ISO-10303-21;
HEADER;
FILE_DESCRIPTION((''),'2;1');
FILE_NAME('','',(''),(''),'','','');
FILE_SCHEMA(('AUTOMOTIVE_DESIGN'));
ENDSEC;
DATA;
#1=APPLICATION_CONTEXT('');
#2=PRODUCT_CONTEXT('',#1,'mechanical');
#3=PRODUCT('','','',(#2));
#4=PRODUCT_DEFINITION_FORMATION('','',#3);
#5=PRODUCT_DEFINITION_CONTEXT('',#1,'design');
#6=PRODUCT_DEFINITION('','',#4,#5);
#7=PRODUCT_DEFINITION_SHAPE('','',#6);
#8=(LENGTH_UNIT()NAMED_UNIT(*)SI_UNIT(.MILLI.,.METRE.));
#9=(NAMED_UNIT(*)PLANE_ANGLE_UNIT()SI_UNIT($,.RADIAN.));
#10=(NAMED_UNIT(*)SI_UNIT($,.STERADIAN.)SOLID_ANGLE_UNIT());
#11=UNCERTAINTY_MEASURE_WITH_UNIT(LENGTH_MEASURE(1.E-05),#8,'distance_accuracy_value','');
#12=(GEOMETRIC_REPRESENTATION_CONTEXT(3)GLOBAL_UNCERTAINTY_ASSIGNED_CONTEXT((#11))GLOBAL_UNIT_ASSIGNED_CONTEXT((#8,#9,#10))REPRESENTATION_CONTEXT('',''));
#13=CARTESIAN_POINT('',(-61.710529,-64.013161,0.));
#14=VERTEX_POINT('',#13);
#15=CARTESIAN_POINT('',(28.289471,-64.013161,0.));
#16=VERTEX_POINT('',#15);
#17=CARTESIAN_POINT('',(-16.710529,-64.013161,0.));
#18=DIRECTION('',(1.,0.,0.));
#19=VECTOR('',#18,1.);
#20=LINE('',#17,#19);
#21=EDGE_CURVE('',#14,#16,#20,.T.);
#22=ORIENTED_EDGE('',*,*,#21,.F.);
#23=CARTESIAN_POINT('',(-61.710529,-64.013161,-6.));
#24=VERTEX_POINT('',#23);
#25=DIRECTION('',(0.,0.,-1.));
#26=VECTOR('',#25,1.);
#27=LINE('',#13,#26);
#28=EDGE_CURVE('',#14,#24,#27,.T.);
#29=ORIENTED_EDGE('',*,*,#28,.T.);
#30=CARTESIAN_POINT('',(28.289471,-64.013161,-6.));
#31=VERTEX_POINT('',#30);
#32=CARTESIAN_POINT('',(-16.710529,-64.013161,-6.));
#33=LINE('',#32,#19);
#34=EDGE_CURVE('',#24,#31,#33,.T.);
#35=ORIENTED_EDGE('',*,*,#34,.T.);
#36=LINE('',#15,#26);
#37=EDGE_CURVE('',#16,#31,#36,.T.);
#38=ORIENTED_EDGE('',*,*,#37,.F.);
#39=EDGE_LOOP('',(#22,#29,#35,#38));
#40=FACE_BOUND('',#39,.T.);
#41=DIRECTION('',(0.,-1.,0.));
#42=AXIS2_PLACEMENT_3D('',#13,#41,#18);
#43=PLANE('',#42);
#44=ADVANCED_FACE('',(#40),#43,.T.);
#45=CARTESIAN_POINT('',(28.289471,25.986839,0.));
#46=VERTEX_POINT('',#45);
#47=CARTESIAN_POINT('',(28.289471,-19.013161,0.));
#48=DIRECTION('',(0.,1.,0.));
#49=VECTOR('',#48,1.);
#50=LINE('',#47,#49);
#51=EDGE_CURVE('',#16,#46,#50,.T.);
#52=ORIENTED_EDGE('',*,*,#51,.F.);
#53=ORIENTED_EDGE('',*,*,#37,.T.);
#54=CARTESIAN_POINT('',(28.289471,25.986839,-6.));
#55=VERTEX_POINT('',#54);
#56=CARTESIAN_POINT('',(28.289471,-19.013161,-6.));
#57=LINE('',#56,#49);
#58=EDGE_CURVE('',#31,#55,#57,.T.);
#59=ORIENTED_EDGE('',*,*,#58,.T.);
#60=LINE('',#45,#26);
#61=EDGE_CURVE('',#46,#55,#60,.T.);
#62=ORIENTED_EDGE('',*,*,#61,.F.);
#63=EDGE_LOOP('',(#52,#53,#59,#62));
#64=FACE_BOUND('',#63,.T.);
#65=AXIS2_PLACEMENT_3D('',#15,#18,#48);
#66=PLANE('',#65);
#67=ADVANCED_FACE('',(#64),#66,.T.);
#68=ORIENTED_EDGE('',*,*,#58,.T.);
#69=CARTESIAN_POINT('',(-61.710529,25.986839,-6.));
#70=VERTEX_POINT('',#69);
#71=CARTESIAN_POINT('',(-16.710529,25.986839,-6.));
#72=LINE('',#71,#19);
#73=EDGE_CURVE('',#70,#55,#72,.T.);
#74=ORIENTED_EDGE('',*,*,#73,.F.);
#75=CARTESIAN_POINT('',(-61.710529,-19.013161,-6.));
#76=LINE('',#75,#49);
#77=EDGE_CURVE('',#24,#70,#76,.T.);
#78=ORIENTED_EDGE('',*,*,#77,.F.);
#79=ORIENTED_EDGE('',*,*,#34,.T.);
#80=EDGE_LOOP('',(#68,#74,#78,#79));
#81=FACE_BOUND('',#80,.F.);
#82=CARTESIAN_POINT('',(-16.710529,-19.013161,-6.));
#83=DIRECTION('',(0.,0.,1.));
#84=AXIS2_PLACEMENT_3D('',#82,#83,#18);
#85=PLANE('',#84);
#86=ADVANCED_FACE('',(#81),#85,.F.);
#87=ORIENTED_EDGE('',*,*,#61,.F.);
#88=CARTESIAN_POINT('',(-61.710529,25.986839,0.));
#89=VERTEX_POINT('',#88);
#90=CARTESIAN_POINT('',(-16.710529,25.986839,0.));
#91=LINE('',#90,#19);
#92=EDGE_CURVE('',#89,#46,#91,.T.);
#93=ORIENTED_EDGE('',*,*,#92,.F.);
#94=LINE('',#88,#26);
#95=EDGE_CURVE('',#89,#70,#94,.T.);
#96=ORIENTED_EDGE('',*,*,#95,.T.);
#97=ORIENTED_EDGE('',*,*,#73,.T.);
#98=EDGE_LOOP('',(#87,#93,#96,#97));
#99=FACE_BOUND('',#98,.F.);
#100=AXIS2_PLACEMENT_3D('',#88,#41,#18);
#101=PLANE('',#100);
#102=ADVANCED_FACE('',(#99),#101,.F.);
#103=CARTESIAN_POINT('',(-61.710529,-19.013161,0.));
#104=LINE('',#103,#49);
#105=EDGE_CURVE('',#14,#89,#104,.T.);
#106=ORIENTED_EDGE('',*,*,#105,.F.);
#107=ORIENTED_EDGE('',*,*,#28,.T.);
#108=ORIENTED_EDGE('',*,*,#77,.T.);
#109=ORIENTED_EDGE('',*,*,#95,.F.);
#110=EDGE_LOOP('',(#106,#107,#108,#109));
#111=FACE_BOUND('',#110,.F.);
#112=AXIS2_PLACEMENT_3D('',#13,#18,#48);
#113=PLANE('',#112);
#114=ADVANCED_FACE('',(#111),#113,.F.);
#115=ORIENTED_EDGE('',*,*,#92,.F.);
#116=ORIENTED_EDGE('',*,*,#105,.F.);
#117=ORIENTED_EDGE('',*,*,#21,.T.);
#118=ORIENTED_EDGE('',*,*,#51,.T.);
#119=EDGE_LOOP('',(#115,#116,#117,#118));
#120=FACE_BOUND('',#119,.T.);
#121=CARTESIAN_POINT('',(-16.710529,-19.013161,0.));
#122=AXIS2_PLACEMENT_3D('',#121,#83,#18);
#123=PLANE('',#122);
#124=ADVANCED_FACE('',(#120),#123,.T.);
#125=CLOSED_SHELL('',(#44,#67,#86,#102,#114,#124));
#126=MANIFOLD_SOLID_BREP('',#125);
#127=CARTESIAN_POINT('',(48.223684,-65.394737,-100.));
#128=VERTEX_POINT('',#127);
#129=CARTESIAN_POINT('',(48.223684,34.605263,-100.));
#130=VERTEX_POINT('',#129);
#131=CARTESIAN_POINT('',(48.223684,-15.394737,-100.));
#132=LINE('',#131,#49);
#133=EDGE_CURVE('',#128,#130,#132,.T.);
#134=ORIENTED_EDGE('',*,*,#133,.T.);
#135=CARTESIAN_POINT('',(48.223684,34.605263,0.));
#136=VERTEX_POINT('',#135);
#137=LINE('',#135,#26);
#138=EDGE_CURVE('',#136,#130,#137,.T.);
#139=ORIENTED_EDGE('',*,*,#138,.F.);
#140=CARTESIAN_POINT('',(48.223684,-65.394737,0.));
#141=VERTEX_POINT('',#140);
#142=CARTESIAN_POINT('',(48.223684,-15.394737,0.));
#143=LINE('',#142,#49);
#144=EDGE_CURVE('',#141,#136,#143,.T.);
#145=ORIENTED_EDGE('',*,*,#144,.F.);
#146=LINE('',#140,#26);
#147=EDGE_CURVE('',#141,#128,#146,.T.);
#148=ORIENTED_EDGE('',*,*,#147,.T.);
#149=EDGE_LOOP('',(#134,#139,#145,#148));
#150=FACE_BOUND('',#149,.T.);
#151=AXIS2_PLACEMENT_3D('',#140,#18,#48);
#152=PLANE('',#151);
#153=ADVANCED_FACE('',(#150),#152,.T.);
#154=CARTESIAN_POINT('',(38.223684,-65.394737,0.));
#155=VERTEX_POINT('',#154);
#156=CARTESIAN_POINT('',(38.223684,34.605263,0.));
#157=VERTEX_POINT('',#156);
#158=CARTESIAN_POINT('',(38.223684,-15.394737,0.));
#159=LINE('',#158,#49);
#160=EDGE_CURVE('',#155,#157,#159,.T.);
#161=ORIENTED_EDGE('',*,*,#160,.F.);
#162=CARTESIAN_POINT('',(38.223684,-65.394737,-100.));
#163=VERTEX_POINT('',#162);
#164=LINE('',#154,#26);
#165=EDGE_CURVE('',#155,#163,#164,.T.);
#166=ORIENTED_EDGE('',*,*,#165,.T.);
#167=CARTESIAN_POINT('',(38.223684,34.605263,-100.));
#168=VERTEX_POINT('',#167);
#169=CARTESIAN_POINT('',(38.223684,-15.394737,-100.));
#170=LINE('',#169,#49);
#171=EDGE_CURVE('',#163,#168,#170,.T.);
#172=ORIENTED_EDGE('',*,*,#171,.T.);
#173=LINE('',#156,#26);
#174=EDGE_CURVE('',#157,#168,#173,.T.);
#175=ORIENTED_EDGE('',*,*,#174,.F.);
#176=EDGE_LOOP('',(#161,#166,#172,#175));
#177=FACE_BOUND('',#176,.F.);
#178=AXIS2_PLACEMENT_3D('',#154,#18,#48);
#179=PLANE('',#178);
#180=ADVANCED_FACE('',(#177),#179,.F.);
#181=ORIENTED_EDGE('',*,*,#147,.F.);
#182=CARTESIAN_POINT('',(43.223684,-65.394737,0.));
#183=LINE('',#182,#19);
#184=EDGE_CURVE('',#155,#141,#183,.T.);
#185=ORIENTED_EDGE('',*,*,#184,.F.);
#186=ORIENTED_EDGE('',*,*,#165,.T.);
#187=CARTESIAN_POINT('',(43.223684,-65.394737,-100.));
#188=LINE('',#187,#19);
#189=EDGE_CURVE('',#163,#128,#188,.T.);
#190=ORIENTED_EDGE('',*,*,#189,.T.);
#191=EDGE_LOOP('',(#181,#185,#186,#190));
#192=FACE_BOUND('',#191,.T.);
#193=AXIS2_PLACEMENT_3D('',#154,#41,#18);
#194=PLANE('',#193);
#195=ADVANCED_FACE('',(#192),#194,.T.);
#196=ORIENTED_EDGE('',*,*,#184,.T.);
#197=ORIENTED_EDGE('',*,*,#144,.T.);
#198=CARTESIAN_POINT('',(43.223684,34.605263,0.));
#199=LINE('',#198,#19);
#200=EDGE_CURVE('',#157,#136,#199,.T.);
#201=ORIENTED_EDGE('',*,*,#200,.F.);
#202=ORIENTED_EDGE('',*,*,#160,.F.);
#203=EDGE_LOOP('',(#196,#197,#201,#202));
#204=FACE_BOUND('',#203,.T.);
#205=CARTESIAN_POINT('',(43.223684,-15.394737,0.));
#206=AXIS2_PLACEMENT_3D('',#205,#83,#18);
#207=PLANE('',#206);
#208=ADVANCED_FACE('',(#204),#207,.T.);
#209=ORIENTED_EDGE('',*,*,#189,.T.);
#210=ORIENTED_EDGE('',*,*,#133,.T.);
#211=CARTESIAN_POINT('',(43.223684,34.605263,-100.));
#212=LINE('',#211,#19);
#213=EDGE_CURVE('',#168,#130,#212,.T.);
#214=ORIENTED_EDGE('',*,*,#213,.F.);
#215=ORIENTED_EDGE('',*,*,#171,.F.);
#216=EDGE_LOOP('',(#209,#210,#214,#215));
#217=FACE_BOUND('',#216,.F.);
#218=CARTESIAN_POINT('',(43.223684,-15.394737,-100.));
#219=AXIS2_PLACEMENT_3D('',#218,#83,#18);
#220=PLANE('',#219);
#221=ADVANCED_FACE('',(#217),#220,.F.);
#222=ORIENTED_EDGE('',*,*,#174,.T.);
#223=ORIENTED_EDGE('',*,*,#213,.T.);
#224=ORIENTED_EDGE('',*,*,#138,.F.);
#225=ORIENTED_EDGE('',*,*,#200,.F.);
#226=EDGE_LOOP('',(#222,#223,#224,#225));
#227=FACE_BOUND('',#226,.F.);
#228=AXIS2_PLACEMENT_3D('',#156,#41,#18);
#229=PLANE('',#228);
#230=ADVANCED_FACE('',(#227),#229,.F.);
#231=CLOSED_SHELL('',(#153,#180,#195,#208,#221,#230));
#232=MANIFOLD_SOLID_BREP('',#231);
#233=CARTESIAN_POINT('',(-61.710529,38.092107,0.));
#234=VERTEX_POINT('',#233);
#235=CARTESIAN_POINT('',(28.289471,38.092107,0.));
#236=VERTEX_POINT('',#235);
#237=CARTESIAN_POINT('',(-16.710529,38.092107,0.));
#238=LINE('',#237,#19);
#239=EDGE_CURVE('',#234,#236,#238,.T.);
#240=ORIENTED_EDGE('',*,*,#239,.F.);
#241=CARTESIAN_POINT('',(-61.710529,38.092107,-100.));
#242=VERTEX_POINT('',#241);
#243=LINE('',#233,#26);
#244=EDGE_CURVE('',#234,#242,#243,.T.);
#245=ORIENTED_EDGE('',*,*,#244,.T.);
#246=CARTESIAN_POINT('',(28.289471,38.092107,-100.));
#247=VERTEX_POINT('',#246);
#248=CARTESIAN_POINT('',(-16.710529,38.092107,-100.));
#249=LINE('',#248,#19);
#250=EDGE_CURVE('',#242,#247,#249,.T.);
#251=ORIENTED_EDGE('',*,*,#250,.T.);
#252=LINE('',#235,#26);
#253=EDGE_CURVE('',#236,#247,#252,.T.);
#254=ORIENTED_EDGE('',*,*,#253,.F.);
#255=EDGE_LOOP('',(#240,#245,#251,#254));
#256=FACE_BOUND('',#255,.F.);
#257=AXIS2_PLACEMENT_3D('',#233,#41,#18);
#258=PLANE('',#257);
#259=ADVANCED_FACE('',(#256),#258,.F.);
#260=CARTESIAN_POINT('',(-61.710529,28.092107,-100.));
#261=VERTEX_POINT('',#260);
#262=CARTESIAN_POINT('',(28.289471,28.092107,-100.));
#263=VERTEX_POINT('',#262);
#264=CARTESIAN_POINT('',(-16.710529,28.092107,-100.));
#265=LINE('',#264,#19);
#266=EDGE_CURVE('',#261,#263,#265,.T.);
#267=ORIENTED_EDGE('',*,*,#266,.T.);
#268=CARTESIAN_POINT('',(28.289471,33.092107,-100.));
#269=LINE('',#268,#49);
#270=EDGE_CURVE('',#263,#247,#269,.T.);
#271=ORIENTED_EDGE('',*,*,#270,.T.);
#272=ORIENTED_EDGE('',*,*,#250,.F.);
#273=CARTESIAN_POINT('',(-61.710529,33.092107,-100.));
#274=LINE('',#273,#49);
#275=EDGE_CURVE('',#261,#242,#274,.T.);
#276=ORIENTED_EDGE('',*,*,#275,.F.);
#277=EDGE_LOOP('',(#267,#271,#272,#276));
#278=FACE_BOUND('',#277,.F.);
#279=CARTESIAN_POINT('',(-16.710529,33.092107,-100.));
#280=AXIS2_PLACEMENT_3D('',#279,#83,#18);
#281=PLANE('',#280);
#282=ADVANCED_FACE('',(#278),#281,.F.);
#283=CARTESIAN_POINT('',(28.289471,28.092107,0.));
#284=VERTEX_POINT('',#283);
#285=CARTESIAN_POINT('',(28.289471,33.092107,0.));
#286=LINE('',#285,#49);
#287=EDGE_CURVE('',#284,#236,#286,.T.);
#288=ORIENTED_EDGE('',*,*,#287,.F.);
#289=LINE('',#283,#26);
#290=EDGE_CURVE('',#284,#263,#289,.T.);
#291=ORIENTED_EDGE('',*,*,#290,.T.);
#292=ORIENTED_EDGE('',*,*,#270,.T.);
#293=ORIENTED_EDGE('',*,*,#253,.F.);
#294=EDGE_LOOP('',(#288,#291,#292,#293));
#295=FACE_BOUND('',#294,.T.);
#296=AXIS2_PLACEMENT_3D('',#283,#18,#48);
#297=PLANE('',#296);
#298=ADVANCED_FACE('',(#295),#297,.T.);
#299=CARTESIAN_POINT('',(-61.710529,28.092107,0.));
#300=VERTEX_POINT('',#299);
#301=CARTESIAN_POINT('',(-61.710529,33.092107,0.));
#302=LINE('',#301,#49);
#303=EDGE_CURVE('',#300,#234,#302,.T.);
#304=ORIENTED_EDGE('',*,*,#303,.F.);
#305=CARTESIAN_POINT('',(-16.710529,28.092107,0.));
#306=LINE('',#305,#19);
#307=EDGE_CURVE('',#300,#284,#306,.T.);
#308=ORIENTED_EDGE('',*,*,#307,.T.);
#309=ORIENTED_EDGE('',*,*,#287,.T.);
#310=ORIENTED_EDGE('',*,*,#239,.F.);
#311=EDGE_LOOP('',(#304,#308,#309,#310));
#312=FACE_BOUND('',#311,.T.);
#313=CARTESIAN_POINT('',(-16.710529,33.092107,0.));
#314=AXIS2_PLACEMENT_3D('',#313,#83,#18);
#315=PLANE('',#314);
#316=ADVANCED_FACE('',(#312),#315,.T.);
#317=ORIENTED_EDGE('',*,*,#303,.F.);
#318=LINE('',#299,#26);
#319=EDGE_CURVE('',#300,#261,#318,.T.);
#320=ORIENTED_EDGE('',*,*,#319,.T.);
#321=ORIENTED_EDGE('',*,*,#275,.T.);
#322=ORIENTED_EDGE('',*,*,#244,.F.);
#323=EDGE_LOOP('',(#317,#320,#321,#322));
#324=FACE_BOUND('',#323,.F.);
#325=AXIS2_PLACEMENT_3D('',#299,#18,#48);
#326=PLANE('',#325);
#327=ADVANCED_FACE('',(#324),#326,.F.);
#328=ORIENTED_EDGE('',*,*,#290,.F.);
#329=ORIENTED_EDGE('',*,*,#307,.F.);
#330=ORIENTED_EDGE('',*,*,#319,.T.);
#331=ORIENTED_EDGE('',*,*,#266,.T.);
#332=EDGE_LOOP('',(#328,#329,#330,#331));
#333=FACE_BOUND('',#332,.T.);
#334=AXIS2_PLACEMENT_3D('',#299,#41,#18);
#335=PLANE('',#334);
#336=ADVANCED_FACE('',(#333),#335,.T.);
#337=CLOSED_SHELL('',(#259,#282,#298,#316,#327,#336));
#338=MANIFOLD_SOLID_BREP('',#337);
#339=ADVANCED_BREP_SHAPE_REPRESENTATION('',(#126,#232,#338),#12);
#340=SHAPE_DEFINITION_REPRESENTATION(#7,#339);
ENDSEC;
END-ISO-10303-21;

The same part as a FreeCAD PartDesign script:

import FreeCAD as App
import Part
import Sketcher
from FreeCAD import Vector
Q = App.Units.Quantity


def add_polygon(sketch, points):
    """Adds a closed chain of lines whose ends are joined by coincident constraints."""
    first, n = sketch.GeometryCount, len(points)
    for a, b in zip(points, points[1:] + points[:1]):
        sketch.addGeometry(Part.LineSegment(App.Vector(*a, 0), App.Vector(*b, 0)), False)
    for i in range(n):
        sketch.addConstraint(Sketcher.Constraint("Coincident", first + i, 2, first + (i + 1) % n, 1))

doc = App.newDocument("Part")
body = doc.addObject("PartDesign::Body", "Body")

# Sketch on XY plane
sketch1 = body.newObject("Sketcher::SketchObject", "Sketch")
sketch1.AttachmentSupport = (doc.getObject("XY_Plane"), [""])
sketch1.MapMode = "FlatFace"
add_polygon(sketch1, [(-61.710529, 25.986839), (-61.710529, -64.013161), (28.289471, -64.013161), (28.289471, 25.986839)])  # lines 0-3
sketch1.addConstraint(Sketcher.Constraint("Vertical", 0))
sketch1.addConstraint(Sketcher.Constraint("Horizontal", 1))
sketch1.addConstraint(Sketcher.Constraint("Vertical", 2))
sketch1.addConstraint(Sketcher.Constraint("Horizontal", 3))
sketch1.addConstraint(Sketcher.Constraint("Equal", 3, 0))
sketch1.addConstraint(Sketcher.Constraint("DistanceX", 1, 1, 1, 2, Q("90 mm")))
sketch1.addConstraint(Sketcher.Constraint("DistanceX", 0, 2, -1, 1, Q("61.710529 mm")))
sketch1.addConstraint(Sketcher.Constraint("DistanceY", 0, 2, -1, 1, Q("64.013161 mm")))
pad1 = body.newObject("PartDesign::Pad", "Pad")
pad1.Profile = sketch1
pad1.Length = 6
pad1.Reversed = True
body2 = doc.addObject("PartDesign::Body", "Body001")

# Sketch on XY plane
sketch2 = body2.newObject("Sketcher::SketchObject", "Sketch001")
sketch2.AttachmentSupport = (doc.getObject("XY_Plane001"), [""])
sketch2.MapMode = "FlatFace"
add_polygon(sketch2, [(38.223684, 34.605263), (38.223684, -65.394737), (48.223684, -65.394737), (48.223684, 34.605263)])  # lines 0-3
sketch2.addConstraint(Sketcher.Constraint("Vertical", 0))
sketch2.addConstraint(Sketcher.Constraint("Horizontal", 1))
sketch2.addConstraint(Sketcher.Constraint("Vertical", 2))
sketch2.addConstraint(Sketcher.Constraint("Horizontal", 3))
sketch2.addConstraint(Sketcher.Constraint("DistanceX", 1, 1, 1, 2, Q("10 mm")))
sketch2.addConstraint(Sketcher.Constraint("DistanceY", 0, 2, 0, 1, Q("100 mm")))
sketch2.addConstraint(Sketcher.Constraint("DistanceX", -1, 1, 0, 2, Q("38.223684 mm")))
sketch2.addConstraint(Sketcher.Constraint("DistanceY", 0, 2, -1, 1, Q("65.394737 mm")))
pad2 = body2.newObject("PartDesign::Pad", "Pad001")
pad2.Profile = sketch2
pad2.Length = 100
pad2.Reversed = True
body3 = doc.addObject("PartDesign::Body", "Body002")

# Sketch on XY plane
sketch3 = body3.newObject("Sketcher::SketchObject", "Sketch002")
sketch3.AttachmentSupport = (doc.getObject("XY_Plane002"), [""])
sketch3.MapMode = "FlatFace"
add_polygon(sketch3, [(-61.710529, 38.092107), (-61.710529, 28.092107), (28.289471, 28.092107), (28.289471, 38.092107)])  # lines 0-3
sketch3.addConstraint(Sketcher.Constraint("Vertical", 0))
sketch3.addConstraint(Sketcher.Constraint("Horizontal", 1))
sketch3.addConstraint(Sketcher.Constraint("Vertical", 2))
sketch3.addConstraint(Sketcher.Constraint("Horizontal", 3))
sketch3.addConstraint(Sketcher.Constraint("DistanceX", 1, 1, 1, 2, Q("90 mm")))
sketch3.addConstraint(Sketcher.Constraint("DistanceY", 0, 2, 0, 1, Q("10 mm")))
sketch3.addConstraint(Sketcher.Constraint("DistanceX", 0, 2, -1, 1, Q("61.710529 mm")))
sketch3.addConstraint(Sketcher.Constraint("DistanceY", -1, 1, 0, 2, Q("28.092107 mm")))
pad3 = body3.newObject("PartDesign::Pad", "Pad002")
pad3.Profile = sketch3
pad3.Length = 100
pad3.Reversed = True

doc.recompute()
